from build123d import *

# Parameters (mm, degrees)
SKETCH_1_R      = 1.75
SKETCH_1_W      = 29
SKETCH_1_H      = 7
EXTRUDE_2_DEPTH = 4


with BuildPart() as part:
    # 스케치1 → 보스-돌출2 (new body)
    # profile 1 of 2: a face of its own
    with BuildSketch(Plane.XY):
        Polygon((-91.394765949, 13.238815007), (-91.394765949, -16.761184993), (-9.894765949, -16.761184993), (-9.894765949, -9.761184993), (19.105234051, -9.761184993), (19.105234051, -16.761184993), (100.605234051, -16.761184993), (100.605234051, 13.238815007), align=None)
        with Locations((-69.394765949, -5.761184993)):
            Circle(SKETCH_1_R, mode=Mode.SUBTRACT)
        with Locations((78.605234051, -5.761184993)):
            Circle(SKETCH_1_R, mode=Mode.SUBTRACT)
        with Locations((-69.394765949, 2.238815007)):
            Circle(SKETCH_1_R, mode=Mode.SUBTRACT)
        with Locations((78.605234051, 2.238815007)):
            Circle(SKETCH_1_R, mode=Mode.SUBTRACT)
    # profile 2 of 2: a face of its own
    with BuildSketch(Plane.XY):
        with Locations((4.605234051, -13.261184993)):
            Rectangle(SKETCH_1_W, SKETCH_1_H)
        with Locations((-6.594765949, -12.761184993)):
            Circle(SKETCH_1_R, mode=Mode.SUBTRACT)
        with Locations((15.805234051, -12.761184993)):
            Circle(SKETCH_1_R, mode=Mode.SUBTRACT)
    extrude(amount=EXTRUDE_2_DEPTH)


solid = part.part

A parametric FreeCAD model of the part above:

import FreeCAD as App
import Part
import Sketcher

V = App.Vector


def add_polygon(sketch, points):
    """Adds a closed chain of lines whose ends are joined by coincident constraints."""
    first, n = sketch.GeometryCount, len(points)
    for a, b in zip(points, points[1:] + points[:1]):
        sketch.addGeometry(Part.LineSegment(App.Vector(*a, 0), App.Vector(*b, 0)), False)
    for i in range(n):
        sketch.addConstraint(Sketcher.Constraint("Coincident", first + i, 2, first + (i + 1) % n, 1))

doc = App.newDocument("Part")
body = doc.addObject("PartDesign::Body", "Body")

# Sketch on XY plane
sketch1 = body.newObject("Sketcher::SketchObject", "Sketch")
sketch1.AttachmentSupport = (doc.getObject("XY_Plane"), [""])
sketch1.MapMode = "FlatFace"
add_polygon(sketch1, [(-91.4, 13.2), (-91.4, -16.8), (100.6, -16.8), (100.6, 13.2)])  # lines 0-3
sketch1.addGeometry(Part.Circle(V(-69.4, -5.8, 0), V(0, 0, 1), 1.8), False)  # 4
sketch1.addGeometry(Part.Circle(V(78.6, -5.8, 0), V(0, 0, 1), 1.8), False)  # 5
sketch1.addGeometry(Part.Circle(V(-69.4, 2.2, 0), V(0, 0, 1), 1.8), False)  # 6
sketch1.addGeometry(Part.Circle(V(78.6, 2.2, 0), V(0, 0, 1), 1.8), False)  # 7
sketch1.addGeometry(Part.Circle(V(15.8, -12.8, 0), V(0, 0, 1), 1.8), False)  # 8
sketch1.addGeometry(Part.Circle(V(-6.6, -12.8, 0), V(0, 0, 1), 1.8), False)  # 9
sketch1.addConstraint([
    Sketcher.Constraint("Vertical", 0),
    Sketcher.Constraint("Horizontal", 1),
    Sketcher.Constraint("Vertical", 2),
    Sketcher.Constraint("Horizontal", 3),
    Sketcher.Constraint("Equal", 4, 5),
    Sketcher.Constraint("Equal", 5, 6),
    Sketcher.Constraint("Equal", 6, 7),
    Sketcher.Constraint("Equal", 7, 8),
    Sketcher.Constraint("Equal", 8, 9),
    Sketcher.Constraint("Horizontal", 4, 3, 5, 3),
    Sketcher.Constraint("Horizontal", 6, 3, 7, 3),
    Sketcher.Constraint("Horizontal", 8, 3, 9, 3),
    Sketcher.Constraint("Vertical", 4, 3, 6, 3),
    Sketcher.Constraint("Vertical", 5, 3, 7, 3),
    Sketcher.Constraint("Diameter", 4, 3.5),
    Sketcher.Constraint("DistanceX", 1, 1, 1, 2, 192.0),
    Sketcher.Constraint("DistanceY", 0, 2, 0, 1, 30.0),
    Sketcher.Constraint("DistanceX", 4, 3, 5, 3, 148.0),
    Sketcher.Constraint("DistanceY", 4, 3, 6, 3, 8.0),
    Sketcher.Constraint("DistanceY", 8, 3, 5, 3, 7.0),
    Sketcher.Constraint("DistanceX", 0, 2, 4, 3, 22.0),
    Sketcher.Constraint("DistanceY", 0, 2, 4, 3, 11.0),
    Sketcher.Constraint("DistanceX", 8, 3, 5, 3, 62.8),
    Sketcher.Constraint("DistanceX", 9, 3, 8, 3, 22.4),
    Sketcher.Constraint("DistanceX", 4, 3, -1, 1, 69.394766),
    Sketcher.Constraint("DistanceY", 4, 3, -1, 1, 5.761185),
])
pad1 = body.newObject("PartDesign::Pad", "Pad")
pad1.Profile = sketch1
pad1.Length = 4

doc.recompute()
